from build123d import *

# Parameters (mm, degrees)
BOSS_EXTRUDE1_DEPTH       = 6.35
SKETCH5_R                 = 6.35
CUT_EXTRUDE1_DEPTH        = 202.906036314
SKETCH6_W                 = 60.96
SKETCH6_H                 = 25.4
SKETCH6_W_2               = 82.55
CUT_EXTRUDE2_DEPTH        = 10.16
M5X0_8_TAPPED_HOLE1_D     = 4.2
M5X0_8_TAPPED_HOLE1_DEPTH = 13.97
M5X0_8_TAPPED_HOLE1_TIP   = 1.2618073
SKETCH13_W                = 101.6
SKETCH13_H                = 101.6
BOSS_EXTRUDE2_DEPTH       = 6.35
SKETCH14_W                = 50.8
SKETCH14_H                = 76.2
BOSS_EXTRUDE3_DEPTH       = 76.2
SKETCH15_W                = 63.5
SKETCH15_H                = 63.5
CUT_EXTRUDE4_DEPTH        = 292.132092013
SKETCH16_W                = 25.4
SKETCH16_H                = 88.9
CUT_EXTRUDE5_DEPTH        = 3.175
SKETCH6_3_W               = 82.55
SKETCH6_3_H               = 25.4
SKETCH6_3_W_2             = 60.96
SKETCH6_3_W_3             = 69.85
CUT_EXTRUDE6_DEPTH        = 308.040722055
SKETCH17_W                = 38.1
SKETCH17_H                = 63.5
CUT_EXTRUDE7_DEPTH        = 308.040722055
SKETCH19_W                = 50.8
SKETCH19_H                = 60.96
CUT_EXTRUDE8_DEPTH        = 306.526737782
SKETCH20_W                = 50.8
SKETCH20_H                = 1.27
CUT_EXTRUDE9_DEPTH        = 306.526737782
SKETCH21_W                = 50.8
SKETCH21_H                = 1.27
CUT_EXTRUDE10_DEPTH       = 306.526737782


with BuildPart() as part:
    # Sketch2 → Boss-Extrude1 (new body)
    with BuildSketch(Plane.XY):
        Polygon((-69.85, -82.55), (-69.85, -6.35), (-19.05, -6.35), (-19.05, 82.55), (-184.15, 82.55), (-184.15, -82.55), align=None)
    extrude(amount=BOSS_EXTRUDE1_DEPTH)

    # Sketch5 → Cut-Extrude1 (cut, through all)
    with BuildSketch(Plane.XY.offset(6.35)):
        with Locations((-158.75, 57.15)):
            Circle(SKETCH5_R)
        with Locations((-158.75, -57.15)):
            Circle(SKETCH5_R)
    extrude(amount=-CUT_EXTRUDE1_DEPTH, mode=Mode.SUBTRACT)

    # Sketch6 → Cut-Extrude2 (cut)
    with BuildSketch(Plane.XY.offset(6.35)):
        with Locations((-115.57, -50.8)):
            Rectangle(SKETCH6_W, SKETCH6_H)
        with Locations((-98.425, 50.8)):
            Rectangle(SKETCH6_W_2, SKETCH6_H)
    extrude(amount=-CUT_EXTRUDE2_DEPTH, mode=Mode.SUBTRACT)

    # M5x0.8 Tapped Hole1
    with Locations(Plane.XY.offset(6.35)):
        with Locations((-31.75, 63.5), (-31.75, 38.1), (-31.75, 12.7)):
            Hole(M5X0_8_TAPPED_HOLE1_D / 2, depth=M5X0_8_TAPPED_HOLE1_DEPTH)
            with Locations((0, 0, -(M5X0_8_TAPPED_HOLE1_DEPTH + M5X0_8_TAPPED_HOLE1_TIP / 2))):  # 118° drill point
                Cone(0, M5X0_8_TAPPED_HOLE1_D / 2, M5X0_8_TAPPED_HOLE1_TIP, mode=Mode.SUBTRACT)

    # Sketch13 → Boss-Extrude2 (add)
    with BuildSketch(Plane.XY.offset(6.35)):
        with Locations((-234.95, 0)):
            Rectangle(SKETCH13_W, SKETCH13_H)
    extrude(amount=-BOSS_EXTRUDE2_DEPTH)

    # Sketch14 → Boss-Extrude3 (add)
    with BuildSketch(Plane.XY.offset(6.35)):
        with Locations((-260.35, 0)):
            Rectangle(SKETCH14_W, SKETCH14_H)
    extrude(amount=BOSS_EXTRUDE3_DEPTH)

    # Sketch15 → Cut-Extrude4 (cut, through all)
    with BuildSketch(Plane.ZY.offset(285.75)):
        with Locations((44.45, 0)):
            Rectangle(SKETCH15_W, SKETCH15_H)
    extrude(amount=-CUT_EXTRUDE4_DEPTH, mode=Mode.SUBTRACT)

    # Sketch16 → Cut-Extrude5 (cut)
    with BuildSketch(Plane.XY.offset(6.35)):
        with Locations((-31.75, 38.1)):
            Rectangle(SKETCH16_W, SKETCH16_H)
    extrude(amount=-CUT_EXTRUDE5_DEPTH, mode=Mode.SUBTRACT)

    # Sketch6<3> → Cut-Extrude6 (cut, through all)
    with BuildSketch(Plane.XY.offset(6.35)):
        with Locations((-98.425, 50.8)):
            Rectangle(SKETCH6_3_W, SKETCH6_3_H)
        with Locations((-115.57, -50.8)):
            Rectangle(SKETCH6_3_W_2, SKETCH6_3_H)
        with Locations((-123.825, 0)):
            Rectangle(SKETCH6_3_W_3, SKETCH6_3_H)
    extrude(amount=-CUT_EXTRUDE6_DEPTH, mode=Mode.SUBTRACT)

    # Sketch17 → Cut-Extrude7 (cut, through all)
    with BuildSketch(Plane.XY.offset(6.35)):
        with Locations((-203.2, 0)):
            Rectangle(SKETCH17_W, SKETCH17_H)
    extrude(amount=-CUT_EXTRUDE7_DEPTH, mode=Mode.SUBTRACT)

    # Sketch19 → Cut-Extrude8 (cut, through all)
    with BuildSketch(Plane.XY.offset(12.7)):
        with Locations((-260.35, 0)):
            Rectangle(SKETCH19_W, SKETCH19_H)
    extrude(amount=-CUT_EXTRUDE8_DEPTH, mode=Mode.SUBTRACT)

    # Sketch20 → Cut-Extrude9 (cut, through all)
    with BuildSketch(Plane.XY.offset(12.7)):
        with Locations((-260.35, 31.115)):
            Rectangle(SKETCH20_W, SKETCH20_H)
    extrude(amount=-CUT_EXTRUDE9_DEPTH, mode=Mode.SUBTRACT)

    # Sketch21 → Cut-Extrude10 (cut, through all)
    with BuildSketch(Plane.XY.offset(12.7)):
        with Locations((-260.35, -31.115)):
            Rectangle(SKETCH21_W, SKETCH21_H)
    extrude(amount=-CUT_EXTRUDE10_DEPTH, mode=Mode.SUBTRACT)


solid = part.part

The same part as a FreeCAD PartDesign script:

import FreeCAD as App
import Part
import Sketcher
from FreeCAD import Vector
Q = App.Units.Quantity


def add_polygon(sketch, points):
    """Adds a closed chain of lines whose ends are joined by coincident constraints."""
    first, n = sketch.GeometryCount, len(points)
    for a, b in zip(points, points[1:] + points[:1]):
        sketch.addGeometry(Part.LineSegment(App.Vector(*a, 0), App.Vector(*b, 0)), False)
    for i in range(n):
        sketch.addConstraint(Sketcher.Constraint("Coincident", first + i, 2, first + (i + 1) % n, 1))

doc = App.newDocument("Part")
params = doc.addObject("Spreadsheet::Sheet", "Params")
for row, (alias, value) in enumerate([
    ("sketch1_width", "2 in"),
    ("sketch1_height", "3 in"),
    ("sketch1_width2", "6.5 in"),
    ("pad1_length", "0.25 in"),
    ("sketch2_diameter", "0.5 in"),
    ("sketch3_height", "1 in"),
    ("sketch3_width", "2.4 in"),
    ("sketch3_width2", "3.25 in"),
    ("pocket2_length", "0.4 in"),
    ("hole_diameter", "4.2 mm"),
    ("hole_depth", "0.55 in"),
    ("sketch5_width", "4 in"),
    ("pad2_length", "0.25 in"),
    ("sketch6_width", "2 in"),
    ("sketch6_height", "3 in"),
    ("pad3_length", "3 in"),
    ("sketch7_width", "2.5 in"),
    ("sketch8_width", "1 in"),
    ("sketch8_height", "3.5 in"),
    ("pocket4_length", "0.125 in"),
    ("sketch9_height", "1 in"),
    ("sketch9_width", "2.4 in"),
    ("sketch9_width2", "3.25 in"),
    ("sketch9_width3", "2.75 in"),
    ("sketch10_width", "1.5 in"),
    ("sketch10_height", "2.5 in"),
    ("sketch11_width", "2 in"),
    ("sketch11_height", "2.4 in"),
    ("sketch12_width", "2 in"),
    ("sketch12_height", "0.05 in"),
    ("sketch13_width", "2 in"),
    ("sketch13_height", "0.05 in"),
], start=1):
    params.set(f"A{row}", alias)
    params.set(f"B{row}", "=" + value)
    params.setAlias(f"B{row}", alias)

body = doc.addObject("PartDesign::Body", "Body")

sketch1 = body.newObject("Sketcher::SketchObject", "Sketch")
sketch1.AttachmentSupport = (doc.getObject("XY_Plane"), [""])
sketch1.MapMode = "FlatFace"
add_polygon(sketch1, [(-69.85, -82.55), (-69.85, -6.35), (-19.05, -6.35), (-19.05, 82.55), (-184.15, 82.55), (-184.15, -82.55)])
sketch1.addConstraint([
    Sketcher.Constraint("Vertical", 0),
    Sketcher.Constraint("Horizontal", 1),
    Sketcher.Constraint("Vertical", 2),
    Sketcher.Constraint("Horizontal", 3),
    Sketcher.Constraint("Vertical", 4),
    Sketcher.Constraint("Horizontal", 5),
    Sketcher.Constraint("Equal", 3, 4),
    Sketcher.Constraint("DistanceX", 1, 1, 1, 2, Q("2 in")),
    Sketcher.Constraint("DistanceY", 0, 1, 0, 2, Q("3 in")),
    Sketcher.Constraint("DistanceX", 3, 2, 3, 1, Q("6.5 in")),
    Sketcher.Constraint("DistanceX", 0, 2, -1, 1, Q("2.75 in")),
    Sketcher.Constraint("DistanceY", 0, 2, -1, 1, Q("0.25 in")),
])
sketch1.setExpression("Constraints[13]", "Params.sketch1_width")
sketch1.setExpression("Constraints[14]", "Params.sketch1_height")
sketch1.setExpression("Constraints[15]", "Params.sketch1_width2")
pad1 = body.newObject("PartDesign::Pad", "Pad")
pad1.Profile = sketch1
pad1.setExpression("Length", "Params.pad1_length")

sketch2 = body.newObject("Sketcher::SketchObject", "Sketch001")
sketch2.AttachmentSupport = (doc.getObject("XY_Plane"), [""])
sketch2.MapMode = "FlatFace"
sketch2.AttachmentOffset = App.Placement(Vector(0, 0, 0.25 * 25.4), App.Rotation())
sketch2.addGeometry([
    Part.Circle(Vector(-158.75, 57.15, 0), Vector(0, 0, 1), 6.35),
    Part.Circle(Vector(-158.75, -57.15, 0), Vector(0, 0, 1), 6.35),
], False)
sketch2.addConstraint([
    Sketcher.Constraint("Equal", 0, 1),
    Sketcher.Constraint("Symmetric", 0, 3, 1, 3, -1),
    Sketcher.Constraint("Diameter", 0, Q("0.5 in")),
    Sketcher.Constraint("DistanceY", 1, 3, 0, 3, Q("4.5 in")),
    Sketcher.Constraint("DistanceX", 0, 3, -1, 1, Q("6.25 in")),
])
sketch2.setExpression("Constraints[2]", "Params.sketch2_diameter")
pocket1 = body.newObject("PartDesign::Pocket", "Pocket")
pocket1.Profile = sketch2
pocket1.Type = "ThroughAll"

sketch3 = body.newObject("Sketcher::SketchObject", "Sketch002")
sketch3.AttachmentSupport = (doc.getObject("XY_Plane"), [""])
sketch3.MapMode = "FlatFace"
sketch3.AttachmentOffset = App.Placement(Vector(0, 0, 0.25 * 25.4), App.Rotation())
add_polygon(sketch3, [(-146.05, -38.1), (-146.05, -63.5), (-85.09, -63.5), (-85.09, -38.1)])
add_polygon(sketch3, [(-139.7, 63.5), (-139.7, 38.1), (-57.15, 38.1), (-57.15, 63.5)])
sketch3.addConstraint([
    Sketcher.Constraint("Vertical", 0),
    Sketcher.Constraint("Horizontal", 1),
    Sketcher.Constraint("Vertical", 2),
    Sketcher.Constraint("Horizontal", 3),
    Sketcher.Constraint("Vertical", 4),
    Sketcher.Constraint("Horizontal", 5),
    Sketcher.Constraint("Vertical", 6),
    Sketcher.Constraint("Horizontal", 7),
    Sketcher.Constraint("Equal", 2, 4),
    Sketcher.Constraint("DistanceY", 0, 2, 0, 1, Q("1 in")),
    Sketcher.Constraint("DistanceX", 1, 1, 1, 2, Q("2.4 in")),
    Sketcher.Constraint("DistanceY", 3, 2, 4, 2, Q("3 in")),
    Sketcher.Constraint("DistanceX", 5, 1, 5, 2, Q("3.25 in")),
    Sketcher.Constraint("DistanceY", 0, 2, -1, 1, Q("2.5 in")),
    Sketcher.Constraint("DistanceX", 4, 2, -1, 1, Q("5.5 in")),
    Sketcher.Constraint("DistanceX", 2, 2, 5, 2, Q("1.1 in")),
])
sketch3.setExpression("Constraints[17]", "Params.sketch3_height")
sketch3.setExpression("Constraints[18]", "Params.sketch3_width")
sketch3.setExpression("Constraints[20]", "Params.sketch3_width2")
pocket2 = body.newObject("PartDesign::Pocket", "Pocket001")
pocket2.Profile = sketch3
pocket2.setExpression("Length", "Params.pocket2_length")

sketch4 = body.newObject("Sketcher::SketchObject", "Sketch003")
sketch4.AttachmentSupport = (doc.getObject("XY_Plane"), [""])
sketch4.MapMode = "FlatFace"
sketch4.AttachmentOffset = App.Placement(Vector(0, 0, 0.25 * 25.4), App.Rotation())
sketch4.addGeometry([
    Part.Circle(Vector(-31.75, 63.5, 0), Vector(0, 0, 1), 2.1),
    Part.Circle(Vector(-31.75, 38.1, 0), Vector(0, 0, 1), 2.1),
    Part.Circle(Vector(-31.75, 12.7, 0), Vector(0, 0, 1), 2.1),
], False)
sketch4.addConstraint([
    Sketcher.Constraint("Equal", 0, 1),
    Sketcher.Constraint("Equal", 1, 2),
    Sketcher.Constraint("Vertical", 0, 3, 1, 3),
    Sketcher.Constraint("Vertical", 1, 3, 2, 3),
    Sketcher.Constraint("DistanceY", 1, 3, 0, 3, Q("1 in")),
    Sketcher.Constraint("DistanceY", 2, 3, 1, 3, Q("1 in")),
    Sketcher.Constraint("DistanceY", -1, 1, 0, 3, Q("2.5 in")),
    Sketcher.Constraint("Diameter", 0, 4.2),
    Sketcher.Constraint("DistanceX", 0, 3, -1, 1, Q("1.25 in")),
])
doc.recompute()
hole = body.newObject("PartDesign::Hole", "Hole")
hole.Profile = sketch4
hole.ThreadType = "None"
hole.setExpression("Diameter", "Params.hole_diameter")
hole.DepthType = "Dimension"
hole.setExpression("Depth", "Params.hole_depth")
hole.DrillPoint = "Angled"
hole.DrillPointAngle = 118

sketch5 = body.newObject("Sketcher::SketchObject", "Sketch004")
sketch5.AttachmentSupport = (doc.getObject("XY_Plane"), [""])
sketch5.MapMode = "FlatFace"
sketch5.AttachmentOffset = App.Placement(Vector(0, 0, 0.25 * 25.4), App.Rotation())
add_polygon(sketch5, [(-285.75, 50.8), (-285.75, -50.8), (-184.15, -50.8), (-184.15, 50.8)])
sketch5.addConstraint([
    Sketcher.Constraint("Vertical", 0),
    Sketcher.Constraint("Horizontal", 1),
    Sketcher.Constraint("Vertical", 2),
    Sketcher.Constraint("Horizontal", 3),
    Sketcher.Constraint("Equal", 3, 0),
    Sketcher.Constraint("DistanceX", 1, 1, 1, 2, Q("4 in")),
    Sketcher.Constraint("DistanceY", 0, 2, -1, 1, Q("2 in")),
    Sketcher.Constraint("DistanceX", 0, 2, -1, 1, Q("11.25 in")),
])
sketch5.setExpression("Constraints[9]", "Params.sketch5_width")
pad2 = body.newObject("PartDesign::Pad", "Pad001")
pad2.Profile = sketch5
pad2.setExpression("Length", "Params.pad2_length")
pad2.Reversed = True

sketch6 = body.newObject("Sketcher::SketchObject", "Sketch005")
sketch6.AttachmentSupport = (doc.getObject("XY_Plane"), [""])
sketch6.MapMode = "FlatFace"
sketch6.AttachmentOffset = App.Placement(Vector(0, 0, 0.25 * 25.4), App.Rotation())
add_polygon(sketch6, [(-285.75, 38.1), (-285.75, -38.1), (-234.95, -38.1), (-234.95, 38.1)])
sketch6.addConstraint([
    Sketcher.Constraint("Vertical", 0),
    Sketcher.Constraint("Horizontal", 1),
    Sketcher.Constraint("Vertical", 2),
    Sketcher.Constraint("Horizontal", 3),
    Sketcher.Constraint("DistanceX", 1, 1, 1, 2, Q("2 in")),
    Sketcher.Constraint("DistanceY", 0, 2, 0, 1, Q("3 in")),
    Sketcher.Constraint("DistanceY", 0, 2, -1, 1, Q("1.5 in")),
    Sketcher.Constraint("DistanceX", 0, 2, -1, 1, Q("11.25 in")),
])
sketch6.setExpression("Constraints[8]", "Params.sketch6_width")
sketch6.setExpression("Constraints[9]", "Params.sketch6_height")
pad3 = body.newObject("PartDesign::Pad", "Pad002")
pad3.Profile = sketch6
pad3.setExpression("Length", "Params.pad3_length")

sketch7 = body.newObject("Sketcher::SketchObject", "Sketch006")
sketch7.AttachmentSupport = (doc.getObject("YZ_Plane"), [""])
sketch7.MapMode = "FlatFace"
sketch7.AttachmentOffset = App.Placement(Vector(0, 0, -11.25 * 25.4), App.Rotation())
add_polygon(sketch7, [(31.75, 12.7), (-31.75, 12.7), (-31.75, 76.2), (31.75, 76.2)])
sketch7.addConstraint([
    Sketcher.Constraint("Horizontal", 0),
    Sketcher.Constraint("Vertical", 1),
    Sketcher.Constraint("Horizontal", 2),
    Sketcher.Constraint("Vertical", 3),
    Sketcher.Constraint("Equal", 2, 1),
    Sketcher.Constraint("DistanceX", 0, 2, 0, 1, Q("2.5 in")),
    Sketcher.Constraint("DistanceY", -1, 1, 1, 2, Q("3 in")),
    Sketcher.Constraint("DistanceX", 0, 2, -1, 1, Q("1.25 in")),
])
sketch7.setExpression("Constraints[9]", "Params.sketch7_width")
pocket3 = body.newObject("PartDesign::Pocket", "Pocket002")
pocket3.Profile = sketch7
pocket3.Type = "ThroughAll"
pocket3.Reversed = True

sketch8 = body.newObject("Sketcher::SketchObject", "Sketch007")
sketch8.AttachmentSupport = (doc.getObject("XY_Plane"), [""])
sketch8.MapMode = "FlatFace"
sketch8.AttachmentOffset = App.Placement(Vector(0, 0, 0.25 * 25.4), App.Rotation())
add_polygon(sketch8, [(-44.45, 82.55), (-44.45, -6.35), (-19.05, -6.35), (-19.05, 82.55)])
sketch8.addConstraint([
    Sketcher.Constraint("Vertical", 0),
    Sketcher.Constraint("Horizontal", 1),
    Sketcher.Constraint("Vertical", 2),
    Sketcher.Constraint("Horizontal", 3),
    Sketcher.Constraint("DistanceX", 1, 1, 1, 2, Q("1 in")),
    Sketcher.Constraint("DistanceY", 0, 2, 0, 1, Q("3.5 in")),
    Sketcher.Constraint("DistanceX", 0, 2, -1, 1, Q("1.75 in")),
    Sketcher.Constraint("DistanceY", 0, 2, -1, 1, Q("0.25 in")),
])
sketch8.setExpression("Constraints[8]", "Params.sketch8_width")
sketch8.setExpression("Constraints[9]", "Params.sketch8_height")
pocket4 = body.newObject("PartDesign::Pocket", "Pocket003")
pocket4.Profile = sketch8
pocket4.setExpression("Length", "Params.pocket4_length")

sketch9 = body.newObject("Sketcher::SketchObject", "Sketch008")
sketch9.AttachmentSupport = (doc.getObject("XY_Plane"), [""])
sketch9.MapMode = "FlatFace"
sketch9.AttachmentOffset = App.Placement(Vector(0, 0, 0.25 * 25.4), App.Rotation())
add_polygon(sketch9, [(-139.7, 63.5), (-139.7, 38.1), (-57.15, 38.1), (-57.15, 63.5)])
add_polygon(sketch9, [(-146.05, -38.1), (-146.05, -63.5), (-85.09, -63.5), (-85.09, -38.1)])
add_polygon(sketch9, [(-158.75, 12.7), (-158.75, -12.7), (-88.9, -12.7), (-88.9, 12.7)])
sketch9.addConstraint([
    Sketcher.Constraint("Vertical", 0),
    Sketcher.Constraint("Horizontal", 1),
    Sketcher.Constraint("Vertical", 2),
    Sketcher.Constraint("Horizontal", 3),
    Sketcher.Constraint("Vertical", 4),
    Sketcher.Constraint("Horizontal", 5),
    Sketcher.Constraint("Vertical", 6),
    Sketcher.Constraint("Horizontal", 7),
    Sketcher.Constraint("Vertical", 8),
    Sketcher.Constraint("Horizontal", 9),
    Sketcher.Constraint("Vertical", 10),
    Sketcher.Constraint("Horizontal", 11),
    Sketcher.Constraint("Equal", 2, 4),
    Sketcher.Constraint("Equal", 6, 8),
    Sketcher.Constraint("DistanceY", 0, 2, 0, 1, Q("1 in")),
    Sketcher.Constraint("DistanceX", 5, 1, 5, 2, Q("2.4 in")),
    Sketcher.Constraint("DistanceY", 4, 2, 0, 2, Q("4 in")),
    Sketcher.Constraint("DistanceY", 7, 2, 8, 2, Q("1 in")),
    Sketcher.Constraint("DistanceX", 0, 2, 10, 2, Q("2 in")),
    Sketcher.Constraint("DistanceX", 1, 1, 1, 2, Q("3.25 in")),
    Sketcher.Constraint("DistanceX", 9, 1, 9, 2, Q("2.75 in")),
    Sketcher.Constraint("DistanceX", 0, 2, -1, 1, Q("5.5 in")),
    Sketcher.Constraint("DistanceY", -1, 1, 0, 2, Q("1.5 in")),
    Sketcher.Constraint("DistanceX", 4, 2, 1, 2, Q("3.5 in")),
])
sketch9.setExpression("Constraints[26]", "Params.sketch9_height")
sketch9.setExpression("Constraints[27]", "Params.sketch9_width")
sketch9.setExpression("Constraints[31]", "Params.sketch9_width2")
sketch9.setExpression("Constraints[32]", "Params.sketch9_width3")
pocket5 = body.newObject("PartDesign::Pocket", "Pocket004")
pocket5.Profile = sketch9
pocket5.Type = "ThroughAll"

sketch10 = body.newObject("Sketcher::SketchObject", "Sketch009")
sketch10.AttachmentSupport = (doc.getObject("XY_Plane"), [""])
sketch10.MapMode = "FlatFace"
sketch10.AttachmentOffset = App.Placement(Vector(0, 0, 0.25 * 25.4), App.Rotation())
add_polygon(sketch10, [(-222.25, 31.75), (-222.25, -31.75), (-184.15, -31.75), (-184.15, 31.75)])
sketch10.addConstraint([
    Sketcher.Constraint("Vertical", 0),
    Sketcher.Constraint("Horizontal", 1),
    Sketcher.Constraint("Vertical", 2),
    Sketcher.Constraint("Horizontal", 3),
    Sketcher.Constraint("DistanceX", 1, 1, 1, 2, Q("1.5 in")),
    Sketcher.Constraint("DistanceY", 0, 2, 0, 1, Q("2.5 in")),
    Sketcher.Constraint("DistanceX", 0, 2, -1, 1, Q("8.75 in")),
    Sketcher.Constraint("DistanceY", 0, 2, -1, 1, Q("1.25 in")),
])
sketch10.setExpression("Constraints[8]", "Params.sketch10_width")
sketch10.setExpression("Constraints[9]", "Params.sketch10_height")
pocket6 = body.newObject("PartDesign::Pocket", "Pocket005")
pocket6.Profile = sketch10
pocket6.Type = "ThroughAll"

sketch11 = body.newObject("Sketcher::SketchObject", "Sketch010")
sketch11.AttachmentSupport = (doc.getObject("XY_Plane"), [""])
sketch11.MapMode = "FlatFace"
sketch11.AttachmentOffset = App.Placement(Vector(0, 0, 0.5 * 25.4), App.Rotation())
add_polygon(sketch11, [(-285.75, 30.48), (-285.75, -30.48), (-234.95, -30.48), (-234.95, 30.48)])
sketch11.addConstraint([
    Sketcher.Constraint("Vertical", 0),
    Sketcher.Constraint("Horizontal", 1),
    Sketcher.Constraint("Vertical", 2),
    Sketcher.Constraint("Horizontal", 3),
    Sketcher.Constraint("DistanceX", 1, 1, 1, 2, Q("2 in")),
    Sketcher.Constraint("DistanceY", 0, 2, 0, 1, Q("2.4 in")),
    Sketcher.Constraint("DistanceY", 0, 2, -1, 1, Q("1.2 in")),
    Sketcher.Constraint("DistanceX", 0, 2, -1, 1, Q("11.25 in")),
])
sketch11.setExpression("Constraints[8]", "Params.sketch11_width")
sketch11.setExpression("Constraints[9]", "Params.sketch11_height")
pocket7 = body.newObject("PartDesign::Pocket", "Pocket006")
pocket7.Profile = sketch11
pocket7.Type = "ThroughAll"

sketch12 = body.newObject("Sketcher::SketchObject", "Sketch011")
sketch12.AttachmentSupport = (doc.getObject("XY_Plane"), [""])
sketch12.MapMode = "FlatFace"
sketch12.AttachmentOffset = App.Placement(Vector(0, 0, 0.5 * 25.4), App.Rotation())
add_polygon(sketch12, [(-285.75, 31.75), (-285.75, 30.48), (-234.95, 30.48), (-234.95, 31.75)])
sketch12.addConstraint([
    Sketcher.Constraint("Vertical", 0),
    Sketcher.Constraint("Horizontal", 1),
    Sketcher.Constraint("Vertical", 2),
    Sketcher.Constraint("Horizontal", 3),
    Sketcher.Constraint("DistanceX", 1, 1, 1, 2, Q("2 in")),
    Sketcher.Constraint("DistanceY", 0, 2, 0, 1, Q("0.05 in")),
    Sketcher.Constraint("DistanceY", -1, 1, 0, 2, Q("1.2 in")),
    Sketcher.Constraint("DistanceX", 0, 2, -1, 1, Q("11.25 in")),
])
sketch12.setExpression("Constraints[8]", "Params.sketch12_width")
sketch12.setExpression("Constraints[9]", "Params.sketch12_height")
pocket8 = body.newObject("PartDesign::Pocket", "Pocket007")
pocket8.Profile = sketch12
pocket8.Type = "ThroughAll"

sketch13 = body.newObject("Sketcher::SketchObject", "Sketch012")
sketch13.AttachmentSupport = (doc.getObject("XY_Plane"), [""])
sketch13.MapMode = "FlatFace"
sketch13.AttachmentOffset = App.Placement(Vector(0, 0, 0.5 * 25.4), App.Rotation())
add_polygon(sketch13, [(-285.75, -30.48), (-285.75, -31.75), (-234.95, -31.75), (-234.95, -30.48)])
sketch13.addConstraint([
    Sketcher.Constraint("Vertical", 0),
    Sketcher.Constraint("Horizontal", 1),
    Sketcher.Constraint("Vertical", 2),
    Sketcher.Constraint("Horizontal", 3),
    Sketcher.Constraint("DistanceX", 1, 1, 1, 2, Q("2 in")),
    Sketcher.Constraint("DistanceY", 0, 2, 0, 1, Q("0.05 in")),
    Sketcher.Constraint("DistanceY", 2, 2, -1, 1, Q("1.2 in")),
    Sketcher.Constraint("DistanceX", 0, 2, -1, 1, Q("11.25 in")),
])
sketch13.setExpression("Constraints[8]", "Params.sketch13_width")
sketch13.setExpression("Constraints[9]", "Params.sketch13_height")
pocket9 = body.newObject("PartDesign::Pocket", "Pocket008")
pocket9.Profile = sketch13
pocket9.Type = "ThroughAll"

doc.recompute()
